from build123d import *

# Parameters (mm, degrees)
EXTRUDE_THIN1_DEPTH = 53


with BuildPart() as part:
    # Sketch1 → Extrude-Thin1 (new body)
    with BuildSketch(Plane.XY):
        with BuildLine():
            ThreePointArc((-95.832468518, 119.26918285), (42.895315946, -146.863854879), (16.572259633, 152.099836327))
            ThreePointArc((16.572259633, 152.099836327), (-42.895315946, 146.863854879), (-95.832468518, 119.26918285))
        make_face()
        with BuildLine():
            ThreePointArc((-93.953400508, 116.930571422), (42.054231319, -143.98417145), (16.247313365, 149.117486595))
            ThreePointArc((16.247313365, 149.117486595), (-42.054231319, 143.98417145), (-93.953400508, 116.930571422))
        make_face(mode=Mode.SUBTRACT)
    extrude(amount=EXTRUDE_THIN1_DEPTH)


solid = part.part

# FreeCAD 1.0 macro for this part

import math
import FreeCAD as App
import Part
import Sketcher

doc = App.newDocument("Part")
body = doc.addObject("PartDesign::Body", "Body")

# Sketch on XY plane
sketch1 = body.newObject("Sketcher::SketchObject", "Sketch")
sketch1.AttachmentSupport = (doc.getObject("XY_Plane"), [""])
sketch1.MapMode = "FlatFace"
sketch1.addGeometry(Part.ArcOfCircle(Part.Circle(App.Vector(0, 0, 0), App.Vector(0, 0, 1), 153), math.radians(129), math.radians(444)), False)
sketch1.addGeometry(Part.ArcOfCircle(Part.Circle(App.Vector(0, 0, 0), App.Vector(0, 0, 1), 153), math.radians(84), math.radians(129)), False)
sketch1.addGeometry(Part.ArcOfCircle(Part.Circle(App.Vector(0, 0, 0), App.Vector(0, 0, 1), 150), math.radians(129), math.radians(444)), False)
sketch1.addGeometry(Part.ArcOfCircle(Part.Circle(App.Vector(0, 0, 0), App.Vector(0, 0, 1), 150), math.radians(84), math.radians(129)), False)
sketch1.addConstraint(Sketcher.Constraint("Tangent", 0, 1, 1, 2))
sketch1.addConstraint(Sketcher.Constraint("Coincident", 1, 1, 0, 2))
sketch1.addConstraint(Sketcher.Constraint("Tangent", 2, 1, 3, 2))
sketch1.addConstraint(Sketcher.Constraint("Coincident", 3, 1, 2, 2))
sketch1.addConstraint(Sketcher.Constraint("Coincident", 0, 3, -1, 1))
sketch1.addConstraint(Sketcher.Constraint("Coincident", 2, 3, -1, 1))
sketch1.addConstraint(Sketcher.Constraint("Radius", 0, 153.0))
sketch1.addConstraint(Sketcher.Constraint("Radius", 2, 150.0))
sketch1.addConstraint(Sketcher.Constraint("DistanceX", 2, 1, -1, 1, 93.953401))
sketch1.addConstraint(Sketcher.Constraint("DistanceX", 0, 1, -1, 1, 95.832469))
sketch1.addConstraint(Sketcher.Constraint("DistanceX", -1, 1, 1, 1, 16.57226))
sketch1.addConstraint(Sketcher.Constraint("DistanceY", 3, 1, 1, 1, 2.98235))
pad1 = body.newObject("PartDesign::Pad", "Pad")
pad1.Profile = sketch1
pad1.Length = 53

doc.recompute()
